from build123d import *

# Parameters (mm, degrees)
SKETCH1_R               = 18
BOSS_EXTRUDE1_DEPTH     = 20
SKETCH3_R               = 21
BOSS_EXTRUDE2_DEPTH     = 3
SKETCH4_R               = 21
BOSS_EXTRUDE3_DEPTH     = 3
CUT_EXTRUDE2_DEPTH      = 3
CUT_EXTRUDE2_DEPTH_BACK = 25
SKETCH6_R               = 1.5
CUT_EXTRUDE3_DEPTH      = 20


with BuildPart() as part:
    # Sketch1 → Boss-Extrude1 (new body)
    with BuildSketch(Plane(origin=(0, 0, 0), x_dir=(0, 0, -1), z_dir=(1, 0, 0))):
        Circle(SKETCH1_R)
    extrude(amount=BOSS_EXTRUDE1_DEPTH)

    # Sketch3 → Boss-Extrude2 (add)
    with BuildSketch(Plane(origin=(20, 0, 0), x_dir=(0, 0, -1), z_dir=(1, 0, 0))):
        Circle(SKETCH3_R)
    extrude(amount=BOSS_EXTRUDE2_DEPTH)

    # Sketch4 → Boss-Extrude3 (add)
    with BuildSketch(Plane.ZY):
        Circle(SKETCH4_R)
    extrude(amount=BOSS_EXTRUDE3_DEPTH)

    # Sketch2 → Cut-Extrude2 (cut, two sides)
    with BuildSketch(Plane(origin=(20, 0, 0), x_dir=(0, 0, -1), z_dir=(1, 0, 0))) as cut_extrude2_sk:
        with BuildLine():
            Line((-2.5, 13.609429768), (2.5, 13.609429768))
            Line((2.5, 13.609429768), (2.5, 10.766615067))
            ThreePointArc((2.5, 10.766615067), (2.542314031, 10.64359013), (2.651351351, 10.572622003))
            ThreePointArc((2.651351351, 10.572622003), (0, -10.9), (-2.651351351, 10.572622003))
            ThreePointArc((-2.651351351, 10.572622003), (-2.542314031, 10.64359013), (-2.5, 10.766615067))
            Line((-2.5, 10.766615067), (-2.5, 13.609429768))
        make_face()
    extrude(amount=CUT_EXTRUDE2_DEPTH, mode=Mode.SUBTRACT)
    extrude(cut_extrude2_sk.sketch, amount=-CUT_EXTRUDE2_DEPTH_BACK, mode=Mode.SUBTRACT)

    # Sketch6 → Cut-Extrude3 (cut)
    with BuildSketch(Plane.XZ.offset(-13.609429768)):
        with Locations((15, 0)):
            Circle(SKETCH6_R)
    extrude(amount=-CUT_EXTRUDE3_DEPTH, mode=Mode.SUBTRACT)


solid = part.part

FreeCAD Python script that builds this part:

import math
import FreeCAD as App
import Part
import Sketcher

V = App.Vector
Q = App.Units.Quantity

doc = App.newDocument("Part")
params = doc.addObject("Spreadsheet::Sheet", "Params")
for row, (alias, value) in enumerate([
    ("sketch1_diameter", "36 mm"),
    ("pad1_length", "20 mm"),
    ("sketch2_diameter", "42 mm"),
    ("pad2_length", "3 mm"),
    ("sketch3_diameter", "42 mm"),
    ("pad3_length", "3 mm"),
    ("sketch4_radius", "0.2 mm"),
    ("sketch4_radius2", "10.9 mm"),
    ("sketch4_height", "5 mm"),
    ("sketch5_diameter", "3 mm"),
    ("pocket2_length", "20 mm"),
], start=1):
    params.set(f"A{row}", alias)
    params.set(f"B{row}", "=" + value)
    params.setAlias(f"B{row}", alias)

body = doc.addObject("PartDesign::Body", "Body")

# Sketch on YZ plane
sketch1 = doc.addObject("Sketcher::SketchObject", "Sketch")
body.addObject(sketch1)
sketch1.AttachmentSupport = (doc.YZ_Plane, [""])
sketch1.MapMode = "FlatFace"
sketch1.addGeometry(Part.Circle(V(0, 0, 0), V(0, 0, 1), 18), False)
sketch1.addConstraint([
    Sketcher.Constraint("Coincident", 0, 3, -1, 1),
    Sketcher.Constraint("Diameter", 0, Q("36 mm")),
])
sketch1.setExpression("Constraints[1]", "Params.sketch1_diameter")
pad1 = doc.addObject("PartDesign::Pad", "Pad")
body.addObject(pad1)
pad1.Profile = sketch1
pad1.setExpression("Length", "Params.pad1_length")

# Sketch on YZ plane
sketch2 = doc.addObject("Sketcher::SketchObject", "Sketch001")
body.addObject(sketch2)
sketch2.AttachmentSupport = (doc.YZ_Plane, [""])
sketch2.MapMode = "FlatFace"
sketch2.AttachmentOffset = App.Placement(V(0, 0, 20), App.Rotation())
sketch2.addGeometry(Part.Circle(V(0, 0, 0), V(0, 0, 1), 21), False)
sketch2.addConstraint([
    Sketcher.Constraint("Coincident", 0, 3, -1, 1),
    Sketcher.Constraint("Diameter", 0, Q("42 mm")),
])
sketch2.setExpression("Constraints[1]", "Params.sketch2_diameter")
pad2 = doc.addObject("PartDesign::Pad", "Pad001")
body.addObject(pad2)
pad2.Profile = sketch2
pad2.setExpression("Length", "Params.pad2_length")

# Sketch on YZ plane
sketch3 = doc.addObject("Sketcher::SketchObject", "Sketch002")
body.addObject(sketch3)
sketch3.AttachmentSupport = (doc.YZ_Plane, [""])
sketch3.MapMode = "FlatFace"
sketch3.addGeometry(Part.Circle(V(0, 0, 0), V(0, 0, 1), 21), False)
sketch3.addConstraint([
    Sketcher.Constraint("Coincident", 0, 3, -1, 1),
    Sketcher.Constraint("Diameter", 0, Q("42 mm")),
])
sketch3.setExpression("Constraints[1]", "Params.sketch3_diameter")
pad3 = doc.addObject("PartDesign::Pad", "Pad002")
body.addObject(pad3)
pad3.Profile = sketch3
pad3.setExpression("Length", "Params.pad3_length")
pad3.Reversed = True

# Sketch on YZ plane
sketch4 = doc.addObject("Sketcher::SketchObject", "Sketch003")
body.addObject(sketch4)
sketch4.AttachmentSupport = (doc.YZ_Plane, [""])
sketch4.MapMode = "FlatFace"
sketch4.AttachmentOffset = App.Placement(V(0, 0, 20), App.Rotation())
sketch4.addGeometry([
    Part.LineSegment(V(13.61, -2.5, 0), V(13.61, 2.5, 0)),  # 0
    Part.LineSegment(V(13.61, 2.5, 0), V(10.77, 2.5, 0)),  # 1
    Part.ArcOfCircle(Part.Circle(V(10.77, 2.7, 0), V(0, 0, 1), 0.2), math.radians(-166), math.radians(-90)),  # 2
    Part.ArcOfCircle(Part.Circle(V(0, 0, 0), V(0, 0, 1), 10.9), math.radians(14), math.radians(346)),  # 3
    Part.ArcOfCircle(Part.Circle(V(10.77, -2.7, 0), V(0, 0, 1), 0.2), math.radians(90), math.radians(166)),  # 4
    Part.LineSegment(V(10.77, -2.5, 0), V(13.61, -2.5, 0)),  # 5
], False)
sketch4.addConstraint([
    Sketcher.Constraint("Coincident", 0, 2, 1, 1),
    Sketcher.Constraint("Tangent", 1, 2, 2, 2),
    Sketcher.Constraint("Tangent", 2, 1, 3, 1),
    Sketcher.Constraint("Tangent", 3, 2, 4, 2),
    Sketcher.Constraint("Tangent", 4, 1, 5, 1),
    Sketcher.Constraint("Coincident", 5, 2, 0, 1),
    Sketcher.Constraint("Vertical", 0),
    Sketcher.Constraint("Horizontal", 1),
    Sketcher.Constraint("Horizontal", 5),
    Sketcher.Constraint("Coincident", 3, 3, -1, 1),
    Sketcher.Constraint("Equal", 2, 4),
    Sketcher.Constraint("Vertical", 2, 3, 4, 3),
    Sketcher.Constraint("Radius", 2, Q("0.2 mm")),
    Sketcher.Constraint("Radius", 3, Q("10.9 mm")),
    Sketcher.Constraint("DistanceY", 0, 1, 0, 2, Q("5 mm")),
    Sketcher.Constraint("DistanceX", 1, 2, 1, 1, Q("2.842815 mm")),
])
sketch4.setExpression("Constraints[12]", "Params.sketch4_radius")
sketch4.setExpression("Constraints[13]", "Params.sketch4_radius2")
sketch4.setExpression("Constraints[14]", "Params.sketch4_height")
pocket1 = doc.addObject("PartDesign::Pocket", "Pocket")
body.addObject(pocket1)
pocket1.Profile = sketch4
pocket1.Type = "ThroughAll"
pocket1.Midplane = True

# Sketch on XZ plane
sketch5 = doc.addObject("Sketcher::SketchObject", "Sketch004")
body.addObject(sketch5)
sketch5.AttachmentSupport = (doc.XZ_Plane, [""])
sketch5.MapMode = "FlatFace"
sketch5.AttachmentOffset = App.Placement(V(0, 0, -13.60943), App.Rotation())
sketch5.addGeometry(Part.Circle(V(15, 0, 0), V(0, 0, 1), 1.5), False)
sketch5.addConstraint([
    Sketcher.Constraint("PointOnObject", 0, 3, -1),
    Sketcher.Constraint("Diameter", 0, Q("3 mm")),
    Sketcher.Constraint("DistanceX", -1, 1, 0, 3, Q("15 mm")),
])
sketch5.setExpression("Constraints[1]", "Params.sketch5_diameter")
pocket2 = doc.addObject("PartDesign::Pocket", "Pocket001")
body.addObject(pocket2)
pocket2.Profile = sketch5
pocket2.setExpression("Length", "Params.pocket2_length")

doc.recompute()
